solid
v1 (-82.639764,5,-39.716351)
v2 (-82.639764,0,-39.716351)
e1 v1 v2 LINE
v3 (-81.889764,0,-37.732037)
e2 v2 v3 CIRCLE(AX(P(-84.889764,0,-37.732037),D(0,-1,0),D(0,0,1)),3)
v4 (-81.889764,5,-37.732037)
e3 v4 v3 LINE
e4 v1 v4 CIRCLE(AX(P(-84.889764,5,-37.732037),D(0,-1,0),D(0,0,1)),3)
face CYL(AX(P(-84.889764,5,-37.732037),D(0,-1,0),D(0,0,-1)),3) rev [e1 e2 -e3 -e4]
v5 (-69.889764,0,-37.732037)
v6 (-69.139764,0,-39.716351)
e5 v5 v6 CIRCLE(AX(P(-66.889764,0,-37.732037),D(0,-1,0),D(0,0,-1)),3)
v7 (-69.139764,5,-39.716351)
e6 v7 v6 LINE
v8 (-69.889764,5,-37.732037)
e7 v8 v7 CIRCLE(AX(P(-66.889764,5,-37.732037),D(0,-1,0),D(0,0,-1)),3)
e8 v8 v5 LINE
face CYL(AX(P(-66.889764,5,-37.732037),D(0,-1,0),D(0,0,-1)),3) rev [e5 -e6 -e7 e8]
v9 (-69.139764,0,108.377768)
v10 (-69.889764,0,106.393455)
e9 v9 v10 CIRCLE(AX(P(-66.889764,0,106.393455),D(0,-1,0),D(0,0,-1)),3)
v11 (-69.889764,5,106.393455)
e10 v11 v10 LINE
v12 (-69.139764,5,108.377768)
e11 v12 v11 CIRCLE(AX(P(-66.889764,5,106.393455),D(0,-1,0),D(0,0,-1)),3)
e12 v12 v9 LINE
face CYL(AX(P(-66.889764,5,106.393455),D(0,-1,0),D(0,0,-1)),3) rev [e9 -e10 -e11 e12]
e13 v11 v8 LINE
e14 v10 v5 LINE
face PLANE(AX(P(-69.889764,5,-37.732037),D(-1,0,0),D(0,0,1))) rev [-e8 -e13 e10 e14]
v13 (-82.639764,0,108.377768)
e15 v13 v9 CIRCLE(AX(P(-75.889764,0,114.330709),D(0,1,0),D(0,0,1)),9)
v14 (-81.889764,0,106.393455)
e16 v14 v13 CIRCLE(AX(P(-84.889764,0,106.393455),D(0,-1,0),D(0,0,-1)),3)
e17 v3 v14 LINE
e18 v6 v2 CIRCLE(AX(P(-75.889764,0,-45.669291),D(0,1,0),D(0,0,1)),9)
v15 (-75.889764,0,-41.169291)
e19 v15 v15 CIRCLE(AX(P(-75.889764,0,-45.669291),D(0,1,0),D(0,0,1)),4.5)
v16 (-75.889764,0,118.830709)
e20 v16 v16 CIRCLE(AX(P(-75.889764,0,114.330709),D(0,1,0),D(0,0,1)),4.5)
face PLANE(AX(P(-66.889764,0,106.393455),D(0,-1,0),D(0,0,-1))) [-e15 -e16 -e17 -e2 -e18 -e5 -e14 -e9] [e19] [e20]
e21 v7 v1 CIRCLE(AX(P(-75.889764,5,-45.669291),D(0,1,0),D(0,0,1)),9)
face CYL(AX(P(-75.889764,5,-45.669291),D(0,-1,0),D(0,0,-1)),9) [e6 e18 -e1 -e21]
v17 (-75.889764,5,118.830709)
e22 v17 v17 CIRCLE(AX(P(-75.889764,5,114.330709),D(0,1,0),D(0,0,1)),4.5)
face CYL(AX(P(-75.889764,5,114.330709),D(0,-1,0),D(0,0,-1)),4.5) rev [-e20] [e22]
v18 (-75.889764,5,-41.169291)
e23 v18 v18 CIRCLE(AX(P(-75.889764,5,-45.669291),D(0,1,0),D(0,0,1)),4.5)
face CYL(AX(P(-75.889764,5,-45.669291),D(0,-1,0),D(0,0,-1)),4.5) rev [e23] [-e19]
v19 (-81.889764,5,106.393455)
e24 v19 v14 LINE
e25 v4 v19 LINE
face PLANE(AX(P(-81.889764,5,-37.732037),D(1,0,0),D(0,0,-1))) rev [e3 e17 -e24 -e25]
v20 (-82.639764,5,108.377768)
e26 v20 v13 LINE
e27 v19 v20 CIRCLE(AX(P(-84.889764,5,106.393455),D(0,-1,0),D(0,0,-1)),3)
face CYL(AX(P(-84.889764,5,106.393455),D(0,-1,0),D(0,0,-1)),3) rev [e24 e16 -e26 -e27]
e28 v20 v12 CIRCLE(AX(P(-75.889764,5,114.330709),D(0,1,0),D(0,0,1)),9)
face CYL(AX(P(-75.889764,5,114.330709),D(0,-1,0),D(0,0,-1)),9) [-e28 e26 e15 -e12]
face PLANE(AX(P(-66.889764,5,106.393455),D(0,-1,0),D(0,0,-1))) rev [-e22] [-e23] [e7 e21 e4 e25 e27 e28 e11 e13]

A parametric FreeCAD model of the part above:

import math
import FreeCAD as App
import Part
import Sketcher
from FreeCAD import Vector

doc = App.newDocument("Part")
body = doc.addObject("PartDesign::Body", "Body")

sketch1 = body.newObject("Sketcher::SketchObject", "Sketch")
sketch1.AttachmentSupport = (doc.getObject("XZ_Plane"), [""])
sketch1.MapMode = "FlatFace"
sketch1.addGeometry(Part.LineSegment(Vector(-81.9, -37.7, 0), Vector(-81.9, 106.4, 0)), False)
sketch1.addGeometry(Part.ArcOfCircle(Part.Circle(Vector(-84.9, 106.4, 0), Vector(0, 0, 1), 3), math.radians(0), math.radians(41)), False)
sketch1.addGeometry(Part.ArcOfCircle(Part.Circle(Vector(-75.9, 114.3, 0), Vector(0, 0, 1), 9), math.radians(-41), math.radians(221)), False)
sketch1.addGeometry(Part.ArcOfCircle(Part.Circle(Vector(-66.9, 106.4, 0), Vector(0, 0, 1), 3), math.radians(139), math.radians(180)), False)
sketch1.addGeometry(Part.LineSegment(Vector(-69.9, 106.4, 0), Vector(-69.9, -37.7, 0)), False)
sketch1.addGeometry(Part.ArcOfCircle(Part.Circle(Vector(-66.9, -37.7, 0), Vector(0, 0, 1), 3), math.radians(-180), math.radians(-139)), False)
sketch1.addGeometry(Part.ArcOfCircle(Part.Circle(Vector(-75.9, -45.7, 0), Vector(0, 0, 1), 9), math.radians(139), math.radians(401)), False)
sketch1.addGeometry(Part.ArcOfCircle(Part.Circle(Vector(-84.9, -37.7, 0), Vector(0, 0, 1), 3), math.radians(-41), math.radians(0)), False)
sketch1.addGeometry(Part.Circle(Vector(-75.9, 114.3, 0), Vector(0, 0, 1), 4.5), False)
sketch1.addGeometry(Part.Circle(Vector(-75.9, -45.7, 0), Vector(0, 0, 1), 4.5), False)
sketch1.addConstraint(Sketcher.Constraint("Tangent", 0, 2, 1, 1))
sketch1.addConstraint(Sketcher.Constraint("Tangent", 1, 2, 2, 2))
sketch1.addConstraint(Sketcher.Constraint("Tangent", 2, 1, 3, 1))
sketch1.addConstraint(Sketcher.Constraint("Tangent", 3, 2, 4, 1))
sketch1.addConstraint(Sketcher.Constraint("Tangent", 4, 2, 5, 1))
sketch1.addConstraint(Sketcher.Constraint("Tangent", 5, 2, 6, 2))
sketch1.addConstraint(Sketcher.Constraint("Tangent", 6, 1, 7, 1))
sketch1.addConstraint(Sketcher.Constraint("Tangent", 7, 2, 0, 1))
sketch1.addConstraint(Sketcher.Constraint("Vertical", 0))
sketch1.addConstraint(Sketcher.Constraint("Vertical", 4))
sketch1.addConstraint(Sketcher.Constraint("Coincident", 8, 3, 2, 3))
sketch1.addConstraint(Sketcher.Constraint("Coincident", 9, 3, 6, 3))
sketch1.addConstraint(Sketcher.Constraint("Equal", 1, 3))
sketch1.addConstraint(Sketcher.Constraint("Equal", 3, 5))
sketch1.addConstraint(Sketcher.Constraint("Equal", 2, 6))
sketch1.addConstraint(Sketcher.Constraint("Equal", 5, 7))
sketch1.addConstraint(Sketcher.Constraint("Equal", 8, 9))
sketch1.addConstraint(Sketcher.Constraint("Horizontal", 1, 3, 3, 3))
sketch1.addConstraint(Sketcher.Constraint("Horizontal", 5, 3, 7, 3))
sketch1.addConstraint(Sketcher.Constraint("Diameter", 8, 9.0))
sketch1.addConstraint(Sketcher.Constraint("Radius", 1, 3.0))
sketch1.addConstraint(Sketcher.Constraint("Radius", 2, 9.0))
sketch1.addConstraint(Sketcher.Constraint("DistanceX", 1, 3, 2, 3, 9.0))
sketch1.addConstraint(Sketcher.Constraint("DistanceY", 6, 3, 2, 3, 160.0))
sketch1.addConstraint(Sketcher.Constraint("DistanceY", -1, 1, 2, 3, 114.330709))
sketch1.addConstraint(Sketcher.Constraint("DistanceX", 1, 3, -1, 1, 84.889764))
pad1 = body.newObject("PartDesign::Pad", "Pad")
pad1.Profile = sketch1
pad1.Length = 5
pad1.Reversed = True

doc.recompute()
